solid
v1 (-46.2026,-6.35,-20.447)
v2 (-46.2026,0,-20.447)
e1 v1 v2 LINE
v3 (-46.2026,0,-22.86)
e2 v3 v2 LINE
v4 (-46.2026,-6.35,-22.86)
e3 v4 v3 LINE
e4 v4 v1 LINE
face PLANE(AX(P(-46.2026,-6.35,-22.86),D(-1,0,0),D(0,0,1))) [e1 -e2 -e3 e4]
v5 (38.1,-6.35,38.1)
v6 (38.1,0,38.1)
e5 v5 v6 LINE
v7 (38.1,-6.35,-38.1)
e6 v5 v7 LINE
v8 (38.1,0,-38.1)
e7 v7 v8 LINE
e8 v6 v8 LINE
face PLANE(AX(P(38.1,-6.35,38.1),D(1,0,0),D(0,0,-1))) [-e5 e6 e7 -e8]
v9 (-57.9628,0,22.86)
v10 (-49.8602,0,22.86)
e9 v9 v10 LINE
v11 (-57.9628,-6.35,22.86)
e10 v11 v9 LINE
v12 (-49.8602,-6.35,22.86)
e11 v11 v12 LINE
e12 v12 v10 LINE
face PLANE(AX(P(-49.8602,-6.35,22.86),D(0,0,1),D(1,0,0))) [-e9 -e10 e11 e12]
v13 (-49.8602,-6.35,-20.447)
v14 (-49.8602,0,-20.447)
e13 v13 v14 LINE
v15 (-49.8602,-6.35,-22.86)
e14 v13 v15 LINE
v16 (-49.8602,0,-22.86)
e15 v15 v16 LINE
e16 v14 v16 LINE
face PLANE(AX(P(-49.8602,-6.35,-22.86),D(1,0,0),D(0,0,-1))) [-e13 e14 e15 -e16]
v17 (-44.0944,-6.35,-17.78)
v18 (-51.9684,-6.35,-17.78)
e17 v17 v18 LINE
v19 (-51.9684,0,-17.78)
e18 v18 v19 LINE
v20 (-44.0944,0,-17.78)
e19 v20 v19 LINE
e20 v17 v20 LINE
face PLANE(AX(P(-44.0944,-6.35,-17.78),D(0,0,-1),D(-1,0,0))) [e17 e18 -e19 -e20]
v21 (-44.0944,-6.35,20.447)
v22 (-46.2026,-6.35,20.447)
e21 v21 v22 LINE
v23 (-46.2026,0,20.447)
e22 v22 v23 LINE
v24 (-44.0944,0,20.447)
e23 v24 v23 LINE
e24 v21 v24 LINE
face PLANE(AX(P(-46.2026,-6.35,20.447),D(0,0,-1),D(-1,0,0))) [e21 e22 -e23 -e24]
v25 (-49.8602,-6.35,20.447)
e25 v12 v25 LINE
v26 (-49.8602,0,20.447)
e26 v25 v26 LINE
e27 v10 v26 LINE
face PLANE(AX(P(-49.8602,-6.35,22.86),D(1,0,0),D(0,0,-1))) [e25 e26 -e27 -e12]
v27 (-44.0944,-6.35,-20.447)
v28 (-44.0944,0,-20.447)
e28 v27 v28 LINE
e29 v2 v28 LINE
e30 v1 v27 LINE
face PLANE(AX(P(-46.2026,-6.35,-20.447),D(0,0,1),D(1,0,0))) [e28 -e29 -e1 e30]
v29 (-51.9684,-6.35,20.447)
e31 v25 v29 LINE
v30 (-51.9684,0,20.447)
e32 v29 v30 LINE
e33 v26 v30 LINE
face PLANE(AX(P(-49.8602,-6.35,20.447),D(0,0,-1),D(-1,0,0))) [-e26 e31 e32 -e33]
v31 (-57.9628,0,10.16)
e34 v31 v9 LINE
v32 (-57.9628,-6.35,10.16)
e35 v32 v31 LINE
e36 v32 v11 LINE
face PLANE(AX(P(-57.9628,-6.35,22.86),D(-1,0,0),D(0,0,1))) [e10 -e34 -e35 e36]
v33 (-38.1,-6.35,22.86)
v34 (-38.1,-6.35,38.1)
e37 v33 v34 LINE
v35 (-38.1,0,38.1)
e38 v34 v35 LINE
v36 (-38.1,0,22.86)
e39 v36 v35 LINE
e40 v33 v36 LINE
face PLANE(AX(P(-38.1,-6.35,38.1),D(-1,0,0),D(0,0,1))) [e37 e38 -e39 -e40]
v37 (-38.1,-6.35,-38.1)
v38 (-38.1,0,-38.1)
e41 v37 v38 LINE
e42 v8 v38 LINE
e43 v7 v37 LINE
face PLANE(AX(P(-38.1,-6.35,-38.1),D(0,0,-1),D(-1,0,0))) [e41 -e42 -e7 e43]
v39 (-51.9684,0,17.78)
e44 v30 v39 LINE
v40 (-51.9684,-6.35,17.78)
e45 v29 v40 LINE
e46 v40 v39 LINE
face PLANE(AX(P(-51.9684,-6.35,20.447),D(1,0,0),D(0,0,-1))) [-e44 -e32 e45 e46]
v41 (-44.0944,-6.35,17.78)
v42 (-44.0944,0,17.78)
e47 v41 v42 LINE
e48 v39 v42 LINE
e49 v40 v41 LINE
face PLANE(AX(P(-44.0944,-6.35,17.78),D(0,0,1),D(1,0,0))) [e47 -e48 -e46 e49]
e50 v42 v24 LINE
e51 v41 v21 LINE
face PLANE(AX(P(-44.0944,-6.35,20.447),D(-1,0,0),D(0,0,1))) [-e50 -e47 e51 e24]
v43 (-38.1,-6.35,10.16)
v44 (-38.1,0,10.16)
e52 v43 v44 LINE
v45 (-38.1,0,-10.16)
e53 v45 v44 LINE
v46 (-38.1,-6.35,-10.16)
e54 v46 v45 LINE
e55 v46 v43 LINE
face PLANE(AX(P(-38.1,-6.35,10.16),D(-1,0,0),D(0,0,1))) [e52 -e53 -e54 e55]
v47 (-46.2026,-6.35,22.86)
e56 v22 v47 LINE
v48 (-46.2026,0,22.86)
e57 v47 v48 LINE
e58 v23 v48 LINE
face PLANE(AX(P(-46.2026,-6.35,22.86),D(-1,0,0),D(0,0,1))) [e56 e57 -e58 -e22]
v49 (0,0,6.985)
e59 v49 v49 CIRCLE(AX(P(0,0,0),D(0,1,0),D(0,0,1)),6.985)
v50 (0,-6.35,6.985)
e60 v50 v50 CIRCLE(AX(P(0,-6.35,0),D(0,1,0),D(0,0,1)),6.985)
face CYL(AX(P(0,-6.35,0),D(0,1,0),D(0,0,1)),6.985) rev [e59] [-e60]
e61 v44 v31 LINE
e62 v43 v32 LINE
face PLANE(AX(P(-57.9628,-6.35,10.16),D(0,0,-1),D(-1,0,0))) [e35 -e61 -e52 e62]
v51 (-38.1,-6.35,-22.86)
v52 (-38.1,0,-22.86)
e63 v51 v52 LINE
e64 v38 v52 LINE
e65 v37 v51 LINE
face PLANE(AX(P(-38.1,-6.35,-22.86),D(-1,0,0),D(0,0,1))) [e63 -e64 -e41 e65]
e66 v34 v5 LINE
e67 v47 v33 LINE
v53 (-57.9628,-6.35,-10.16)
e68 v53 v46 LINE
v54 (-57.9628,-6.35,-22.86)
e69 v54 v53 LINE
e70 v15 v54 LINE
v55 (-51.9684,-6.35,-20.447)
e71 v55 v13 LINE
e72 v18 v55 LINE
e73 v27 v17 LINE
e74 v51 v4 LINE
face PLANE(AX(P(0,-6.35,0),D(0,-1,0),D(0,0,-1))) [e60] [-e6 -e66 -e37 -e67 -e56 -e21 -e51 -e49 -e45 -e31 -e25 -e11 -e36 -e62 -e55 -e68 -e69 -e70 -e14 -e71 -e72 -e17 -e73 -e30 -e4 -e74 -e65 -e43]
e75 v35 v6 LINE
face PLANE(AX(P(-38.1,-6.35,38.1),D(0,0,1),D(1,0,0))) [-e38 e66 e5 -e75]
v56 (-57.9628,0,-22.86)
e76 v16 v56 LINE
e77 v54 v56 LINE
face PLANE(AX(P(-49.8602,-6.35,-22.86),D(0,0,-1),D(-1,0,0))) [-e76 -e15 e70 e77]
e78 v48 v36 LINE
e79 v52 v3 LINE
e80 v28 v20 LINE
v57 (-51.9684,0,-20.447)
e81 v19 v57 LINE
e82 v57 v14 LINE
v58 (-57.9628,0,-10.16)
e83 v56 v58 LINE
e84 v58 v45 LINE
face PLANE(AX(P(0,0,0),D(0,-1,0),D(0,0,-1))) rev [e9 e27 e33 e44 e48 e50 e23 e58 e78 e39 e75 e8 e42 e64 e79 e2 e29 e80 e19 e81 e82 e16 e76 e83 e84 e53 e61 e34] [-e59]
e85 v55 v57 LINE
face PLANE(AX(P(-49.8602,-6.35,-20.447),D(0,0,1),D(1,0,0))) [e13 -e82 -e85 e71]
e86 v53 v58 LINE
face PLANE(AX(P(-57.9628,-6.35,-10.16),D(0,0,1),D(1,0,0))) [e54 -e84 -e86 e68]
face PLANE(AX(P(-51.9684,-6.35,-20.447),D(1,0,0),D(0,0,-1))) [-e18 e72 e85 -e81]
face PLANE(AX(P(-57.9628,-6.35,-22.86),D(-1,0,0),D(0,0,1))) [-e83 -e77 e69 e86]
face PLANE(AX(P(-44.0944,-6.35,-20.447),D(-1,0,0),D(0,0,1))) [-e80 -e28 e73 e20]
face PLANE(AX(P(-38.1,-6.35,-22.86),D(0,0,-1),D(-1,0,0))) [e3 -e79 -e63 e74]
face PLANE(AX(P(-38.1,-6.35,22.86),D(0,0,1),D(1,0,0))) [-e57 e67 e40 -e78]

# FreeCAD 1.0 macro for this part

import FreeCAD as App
import Part
import Sketcher
Q = App.Units.Quantity


def add_polygon(sketch, points):
    """Adds a closed chain of lines whose ends are joined by coincident constraints."""
    first, n = sketch.GeometryCount, len(points)
    for a, b in zip(points, points[1:] + points[:1]):
        sketch.addGeometry(Part.LineSegment(App.Vector(*a, 0), App.Vector(*b, 0)), False)
    for i in range(n):
        sketch.addConstraint(Sketcher.Constraint("Coincident", first + i, 2, first + (i + 1) % n, 1))

doc = App.newDocument("Part")
body = doc.addObject("PartDesign::Body", "Body")

sketch1 = doc.addObject("Sketcher::SketchObject", "Sketch")
body.addObject(sketch1)
sketch1.AttachmentSupport = (doc.XZ_Plane, [""])
sketch1.MapMode = "FlatFace"
add_polygon(sketch1, [(-38.1, 38.1), (38.1, 38.1), (38.1, -38.1), (-38.1, -38.1), (-38.1, -22.86), (-46.2026, -22.86), (-46.2026, -20.447), (-44.0944, -20.447), (-44.0944, -17.78), (-51.9684, -17.78), (-51.9684, -20.447), (-49.8602, -20.447), (-49.8602, -22.86), (-57.9628, -22.86), (-57.9628, -10.16), (-38.1, -10.16), (-38.1, 10.16), (-57.9628, 10.16), (-57.9628, 22.86), (-49.8602, 22.86), (-49.8602, 20.447), (-51.9684, 20.447), (-51.9684, 17.78), (-44.0944, 17.78), (-44.0944, 20.447), (-46.2026, 20.447), (-46.2026, 22.86), (-38.1, 22.86)])
sketch1.addGeometry(Part.Circle(App.Vector(0, 0, 0), App.Vector(0, 0, 1), 6.985), False)
sketch1.addConstraint(Sketcher.Constraint("Horizontal", 0))
sketch1.addConstraint(Sketcher.Constraint("Vertical", 1))
sketch1.addConstraint(Sketcher.Constraint("Horizontal", 2))
sketch1.addConstraint(Sketcher.Constraint("Vertical", 3))
sketch1.addConstraint(Sketcher.Constraint("Horizontal", 4))
sketch1.addConstraint(Sketcher.Constraint("Vertical", 5))
sketch1.addConstraint(Sketcher.Constraint("Horizontal", 6))
sketch1.addConstraint(Sketcher.Constraint("Vertical", 7))
sketch1.addConstraint(Sketcher.Constraint("Horizontal", 8))
sketch1.addConstraint(Sketcher.Constraint("Vertical", 9))
sketch1.addConstraint(Sketcher.Constraint("Horizontal", 10))
sketch1.addConstraint(Sketcher.Constraint("Vertical", 11))
sketch1.addConstraint(Sketcher.Constraint("Horizontal", 12))
sketch1.addConstraint(Sketcher.Constraint("Vertical", 13))
sketch1.addConstraint(Sketcher.Constraint("Horizontal", 14))
sketch1.addConstraint(Sketcher.Constraint("Vertical", 15))
sketch1.addConstraint(Sketcher.Constraint("Horizontal", 16))
sketch1.addConstraint(Sketcher.Constraint("Vertical", 17))
sketch1.addConstraint(Sketcher.Constraint("Horizontal", 18))
sketch1.addConstraint(Sketcher.Constraint("Vertical", 19))
sketch1.addConstraint(Sketcher.Constraint("Horizontal", 20))
sketch1.addConstraint(Sketcher.Constraint("Vertical", 21))
sketch1.addConstraint(Sketcher.Constraint("Horizontal", 22))
sketch1.addConstraint(Sketcher.Constraint("Vertical", 23))
sketch1.addConstraint(Sketcher.Constraint("Horizontal", 24))
sketch1.addConstraint(Sketcher.Constraint("Vertical", 25))
sketch1.addConstraint(Sketcher.Constraint("Horizontal", 26))
sketch1.addConstraint(Sketcher.Constraint("Vertical", 27))
sketch1.addConstraint(Sketcher.Constraint("Coincident", 28, 3, -1, 1))
sketch1.addConstraint(Sketcher.Constraint("Symmetric", 0, 2, 2, 2, -1, 1))
sketch1.addConstraint(Sketcher.Constraint("Symmetric", 13, 2, 16, 2, -1))
sketch1.addConstraint(Sketcher.Constraint("Symmetric", 11, 2, 18, 2, -1))
sketch1.addConstraint(Sketcher.Constraint("Symmetric", 9, 2, 20, 2, -1))
sketch1.addConstraint(Sketcher.Constraint("Symmetric", 7, 2, 22, 2, -1))
sketch1.addConstraint(Sketcher.Constraint("Symmetric", 5, 2, 24, 2, -1))
sketch1.addConstraint(Sketcher.Constraint("Symmetric", 3, 2, 26, 2, -1))
sketch1.addConstraint(Sketcher.Constraint("Horizontal", 6, 2, 9, 2))
sketch1.addConstraint(Sketcher.Constraint("Horizontal", 4, 2, 11, 2))
sketch1.addConstraint(Sketcher.Constraint("Vertical", 3, 2, 14, 2))
sketch1.addConstraint(Sketcher.Constraint("Equal", 6, 10))
sketch1.addConstraint(Sketcher.Constraint("Equal", 4, 12))
sketch1.addConstraint(Sketcher.Constraint("Equal", 2, 1))
sketch1.addConstraint(Sketcher.Constraint("Diameter", 28, Q("0.55 in")))
sketch1.addConstraint(Sketcher.Constraint("DistanceX", 0, 1, 0, 2, Q("3 in")))
sketch1.addConstraint(Sketcher.Constraint("DistanceY", 3, 1, 3, 2, Q("0.6 in")))
sketch1.addConstraint(Sketcher.Constraint("DistanceY", 13, 1, 13, 2, Q("0.5 in")))
sketch1.addConstraint(Sketcher.Constraint("DistanceX", 8, 2, 8, 1, Q("0.31 in")))
sketch1.addConstraint(Sketcher.Constraint("DistanceY", 7, 2, -1, 1, Q("0.7 in")))
sketch1.addConstraint(Sketcher.Constraint("DistanceX", 4, 2, 4, 1, Q("0.319 in")))
sketch1.addConstraint(Sketcher.Constraint("DistanceX", 6, 1, 6, 2, Q("0.083 in")))
sketch1.addConstraint(Sketcher.Constraint("DistanceY", 5, 1, 5, 2, Q("0.095 in")))
pad1 = doc.addObject("PartDesign::Pad", "Pad")
body.addObject(pad1)
pad1.Profile = sketch1
pad1.Length = Q("0.25 in")

doc.recompute()
